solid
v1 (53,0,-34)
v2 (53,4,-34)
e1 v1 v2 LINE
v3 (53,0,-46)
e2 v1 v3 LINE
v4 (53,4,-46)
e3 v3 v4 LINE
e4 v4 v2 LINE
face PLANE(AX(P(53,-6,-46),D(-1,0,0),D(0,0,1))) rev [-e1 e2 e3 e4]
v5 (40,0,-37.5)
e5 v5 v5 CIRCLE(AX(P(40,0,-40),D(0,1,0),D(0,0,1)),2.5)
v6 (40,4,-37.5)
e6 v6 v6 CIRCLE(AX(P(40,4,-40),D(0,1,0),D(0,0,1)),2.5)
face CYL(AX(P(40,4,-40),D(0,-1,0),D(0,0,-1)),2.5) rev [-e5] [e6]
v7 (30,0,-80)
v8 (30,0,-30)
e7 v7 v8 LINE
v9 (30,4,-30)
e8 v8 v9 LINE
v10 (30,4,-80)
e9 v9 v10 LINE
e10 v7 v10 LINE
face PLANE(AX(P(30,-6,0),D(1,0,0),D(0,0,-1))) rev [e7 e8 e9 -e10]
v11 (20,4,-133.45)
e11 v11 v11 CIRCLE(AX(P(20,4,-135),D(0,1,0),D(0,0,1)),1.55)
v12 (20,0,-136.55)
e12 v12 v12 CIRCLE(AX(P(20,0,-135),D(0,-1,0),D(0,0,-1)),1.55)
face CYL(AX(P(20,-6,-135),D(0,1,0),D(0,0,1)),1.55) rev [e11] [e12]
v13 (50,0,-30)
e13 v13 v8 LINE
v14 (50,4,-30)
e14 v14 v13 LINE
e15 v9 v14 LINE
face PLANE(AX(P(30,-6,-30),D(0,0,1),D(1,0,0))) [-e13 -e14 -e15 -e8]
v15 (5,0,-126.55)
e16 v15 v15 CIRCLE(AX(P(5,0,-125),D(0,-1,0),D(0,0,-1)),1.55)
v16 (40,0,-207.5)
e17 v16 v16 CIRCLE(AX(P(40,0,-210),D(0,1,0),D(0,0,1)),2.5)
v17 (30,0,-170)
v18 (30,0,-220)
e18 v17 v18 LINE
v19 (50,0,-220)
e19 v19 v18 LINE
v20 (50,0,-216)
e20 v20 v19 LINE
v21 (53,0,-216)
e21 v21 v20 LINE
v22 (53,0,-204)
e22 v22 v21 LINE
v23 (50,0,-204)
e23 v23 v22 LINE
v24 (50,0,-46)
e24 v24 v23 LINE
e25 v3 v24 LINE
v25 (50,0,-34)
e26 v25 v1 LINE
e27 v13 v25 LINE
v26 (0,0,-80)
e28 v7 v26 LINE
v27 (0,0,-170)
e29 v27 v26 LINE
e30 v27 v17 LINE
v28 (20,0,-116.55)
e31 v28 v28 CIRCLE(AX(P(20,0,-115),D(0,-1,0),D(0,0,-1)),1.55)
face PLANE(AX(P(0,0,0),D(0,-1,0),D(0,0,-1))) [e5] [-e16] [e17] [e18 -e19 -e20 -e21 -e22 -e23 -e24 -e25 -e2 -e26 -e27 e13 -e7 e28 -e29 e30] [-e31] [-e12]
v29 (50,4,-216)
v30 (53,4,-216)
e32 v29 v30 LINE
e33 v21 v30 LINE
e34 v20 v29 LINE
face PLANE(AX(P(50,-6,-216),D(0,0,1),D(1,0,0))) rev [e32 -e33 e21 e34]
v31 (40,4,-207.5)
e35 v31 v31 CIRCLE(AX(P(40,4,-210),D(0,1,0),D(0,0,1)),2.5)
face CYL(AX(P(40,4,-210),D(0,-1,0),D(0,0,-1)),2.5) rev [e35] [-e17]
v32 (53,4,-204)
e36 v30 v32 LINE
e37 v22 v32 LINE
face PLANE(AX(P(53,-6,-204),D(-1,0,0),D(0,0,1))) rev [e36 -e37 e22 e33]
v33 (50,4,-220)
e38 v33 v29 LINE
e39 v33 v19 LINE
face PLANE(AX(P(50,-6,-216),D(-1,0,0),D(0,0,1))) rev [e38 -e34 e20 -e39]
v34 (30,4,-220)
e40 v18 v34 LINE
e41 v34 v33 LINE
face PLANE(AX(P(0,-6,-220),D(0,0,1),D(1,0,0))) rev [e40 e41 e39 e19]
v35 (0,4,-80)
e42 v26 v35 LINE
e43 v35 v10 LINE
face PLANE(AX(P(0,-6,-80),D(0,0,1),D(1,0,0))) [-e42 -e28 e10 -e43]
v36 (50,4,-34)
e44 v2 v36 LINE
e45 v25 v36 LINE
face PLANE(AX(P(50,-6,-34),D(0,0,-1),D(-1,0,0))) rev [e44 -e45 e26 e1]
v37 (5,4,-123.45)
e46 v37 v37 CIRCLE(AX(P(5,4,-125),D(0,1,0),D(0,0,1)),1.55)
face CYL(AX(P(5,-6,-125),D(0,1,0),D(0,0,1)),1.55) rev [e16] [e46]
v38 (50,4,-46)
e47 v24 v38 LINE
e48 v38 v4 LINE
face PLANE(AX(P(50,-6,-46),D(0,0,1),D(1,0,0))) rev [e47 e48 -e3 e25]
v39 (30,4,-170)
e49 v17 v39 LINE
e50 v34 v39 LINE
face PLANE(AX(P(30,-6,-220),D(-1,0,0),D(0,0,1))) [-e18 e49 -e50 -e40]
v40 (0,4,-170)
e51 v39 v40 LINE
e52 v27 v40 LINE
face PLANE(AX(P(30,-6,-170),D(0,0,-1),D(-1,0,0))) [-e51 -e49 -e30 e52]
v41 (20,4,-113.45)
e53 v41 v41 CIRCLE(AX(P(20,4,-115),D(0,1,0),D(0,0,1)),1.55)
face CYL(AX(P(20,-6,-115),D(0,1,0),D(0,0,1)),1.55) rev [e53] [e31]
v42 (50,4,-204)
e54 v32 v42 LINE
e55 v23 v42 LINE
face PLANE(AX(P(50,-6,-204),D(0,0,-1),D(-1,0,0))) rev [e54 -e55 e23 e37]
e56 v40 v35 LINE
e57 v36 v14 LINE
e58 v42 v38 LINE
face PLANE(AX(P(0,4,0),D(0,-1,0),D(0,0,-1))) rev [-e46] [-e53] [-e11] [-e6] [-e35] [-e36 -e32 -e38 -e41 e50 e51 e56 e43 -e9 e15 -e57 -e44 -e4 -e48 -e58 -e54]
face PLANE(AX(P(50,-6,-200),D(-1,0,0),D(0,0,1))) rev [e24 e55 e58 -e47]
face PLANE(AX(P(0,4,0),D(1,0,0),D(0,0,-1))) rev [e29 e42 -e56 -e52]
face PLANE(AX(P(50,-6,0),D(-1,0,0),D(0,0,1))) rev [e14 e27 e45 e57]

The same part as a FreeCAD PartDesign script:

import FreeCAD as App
import Part
import Sketcher

V = App.Vector
Q = App.Units.Quantity

doc = App.newDocument("Part")
body = doc.addObject("PartDesign::Body", "Body")

# Sketch on XZ plane
sketch1 = body.newObject("Sketcher::SketchObject", "Sketch")
sketch1.AttachmentSupport = (doc.getObject("XZ_Plane"), [""])
sketch1.MapMode = "FlatFace"
sketch1.addGeometry([
    Part.LineSegment(V(0, -250, 0), V(0, 0, 0)),  # 0
    Part.LineSegment(V(0, 0, 0), V(250, 0, 0)),  # 1
    Part.LineSegment(V(250, 0, 0), V(250, -250, 0)),  # 2
    Part.LineSegment(V(250, -250, 0), V(0, -250, 0)),  # 3
    Part.Circle(V(40, -40, 0), V(0, 0, 1), 2.5),  # 4
    Part.Circle(V(210, -40, 0), V(0, 0, 1), 2.5),  # 5
    Part.Circle(V(40, -210, 0), V(0, 0, 1), 2.5),  # 6
    Part.Circle(V(210, -210, 0), V(0, 0, 1), 2.5),  # 7
], False)
sketch1.addConstraint([
    Sketcher.Constraint("Coincident", 0, 2, 1, 1),
    Sketcher.Constraint("Coincident", 1, 2, 2, 1),
    Sketcher.Constraint("Coincident", 2, 2, 3, 1),
    Sketcher.Constraint("Coincident", 3, 2, 0, 1),
    Sketcher.Constraint("Vertical", 0),
    Sketcher.Constraint("Horizontal", 1),
    Sketcher.Constraint("Vertical", 2),
    Sketcher.Constraint("Horizontal", 3),
    Sketcher.Constraint("Coincident", 0, 2, -1, 1),
    Sketcher.Constraint("Equal", 4, 5),
    Sketcher.Constraint("Equal", 5, 6),
    Sketcher.Constraint("Equal", 6, 7),
    Sketcher.Constraint("Horizontal", 4, 3, 5, 3),
    Sketcher.Constraint("Horizontal", 6, 3, 7, 3),
    Sketcher.Constraint("Vertical", 4, 3, 6, 3),
    Sketcher.Constraint("Vertical", 5, 3, 7, 3),
    Sketcher.Constraint("Equal", 3, 0),
    Sketcher.Constraint("Diameter", 4, Q("5 mm")),
    Sketcher.Constraint("DistanceX", 1, 1, 1, 2, Q("250 mm")),
    Sketcher.Constraint("DistanceX", -1, 1, 4, 3, Q("40 mm")),
    Sketcher.Constraint("DistanceY", 4, 3, -1, 1, Q("40 mm")),
    Sketcher.Constraint("DistanceX", -1, 1, 5, 3, Q("210 mm")),
    Sketcher.Constraint("DistanceY", 6, 3, -1, 1, Q("210 mm")),
])
pad1 = body.newObject("PartDesign::Pad", "Pad")
pad1.Profile = sketch1
pad1.Length = 4
pad1.Reversed = True

# Sketch on XZ plane
sketch2 = body.newObject("Sketcher::SketchObject", "Sketch001")
sketch2.AttachmentSupport = (doc.getObject("XZ_Plane"), [""])
sketch2.MapMode = "FlatFace"
sketch2.AttachmentOffset = App.Placement(V(0, 0, -4), App.Rotation())
sketch2.addGeometry([
    Part.LineSegment(V(50, -50, 0), V(200, -50, 0)),
    Part.LineSegment(V(200, -50, 0), V(200, -200, 0)),
    Part.LineSegment(V(200, -200, 0), V(50, -200, 0)),
    Part.LineSegment(V(50, -200, 0), V(50, -50, 0)),
], False)
sketch2.addConstraint([
    Sketcher.Constraint("Coincident", 0, 2, 1, 1),
    Sketcher.Constraint("Coincident", 1, 2, 2, 1),
    Sketcher.Constraint("Coincident", 2, 2, 3, 1),
    Sketcher.Constraint("Coincident", 3, 2, 0, 1),
    Sketcher.Constraint("Horizontal", 0),
    Sketcher.Constraint("Vertical", 1),
    Sketcher.Constraint("Horizontal", 2),
    Sketcher.Constraint("Vertical", 3),
    Sketcher.Constraint("Equal", 2, 1),
    Sketcher.Constraint("DistanceX", 0, 1, 0, 2, Q("150 mm")),
    Sketcher.Constraint("DistanceX", -1, 1, 0, 2, Q("200 mm")),
    Sketcher.Constraint("DistanceY", 0, 2, -1, 1, Q("50 mm")),
])
pocket1 = body.newObject("PartDesign::Pocket", "Pocket")
pocket1.Profile = sketch2
pocket1.Length = 4
pocket1.Reversed = True

# Sketch on XZ plane
sketch3 = body.newObject("Sketcher::SketchObject", "Sketch002")
sketch3.AttachmentSupport = (doc.getObject("XZ_Plane"), [""])
sketch3.MapMode = "FlatFace"
sketch3.AttachmentOffset = App.Placement(V(0, 0, -4), App.Rotation())
sketch3.addGeometry([
    Part.LineSegment(V(50, -200, 0), V(50, -50, 0)),  # 0
    Part.LineSegment(V(50, -50, 0), V(200, -50, 0)),  # 1
    Part.LineSegment(V(200, -50, 0), V(200, -200, 0)),  # 2
    Part.LineSegment(V(200, -200, 0), V(50, -200, 0)),  # 3
    Part.LineSegment(V(175, -75, 0), V(75, -75, 0)),  # 4
    Part.LineSegment(V(75, -75, 0), V(75, -175, 0)),  # 5
    Part.LineSegment(V(75, -175, 0), V(175, -175, 0)),  # 6
    Part.LineSegment(V(175, -175, 0), V(175, -75, 0)),  # 7
], False)
sketch3.addConstraint([
    Sketcher.Constraint("Coincident", 0, 2, 1, 1),
    Sketcher.Constraint("Coincident", 1, 2, 2, 1),
    Sketcher.Constraint("Coincident", 2, 2, 3, 1),
    Sketcher.Constraint("Coincident", 3, 2, 0, 1),
    Sketcher.Constraint("Coincident", 4, 2, 5, 1),
    Sketcher.Constraint("Coincident", 5, 2, 6, 1),
    Sketcher.Constraint("Coincident", 6, 2, 7, 1),
    Sketcher.Constraint("Coincident", 7, 2, 4, 1),
    Sketcher.Constraint("Vertical", 0),
    Sketcher.Constraint("Horizontal", 1),
    Sketcher.Constraint("Vertical", 2),
    Sketcher.Constraint("Horizontal", 3),
    Sketcher.Constraint("Horizontal", 4),
    Sketcher.Constraint("Vertical", 5),
    Sketcher.Constraint("Horizontal", 6),
    Sketcher.Constraint("Vertical", 7),
    Sketcher.Constraint("Equal", 3, 0),
    Sketcher.Constraint("Equal", 6, 5),
    Sketcher.Constraint("DistanceX", 1, 1, 1, 2, Q("150 mm")),
    Sketcher.Constraint("DistanceX", 4, 2, 4, 1, Q("100 mm")),
    Sketcher.Constraint("DistanceX", -1, 1, 0, 2, Q("50 mm")),
    Sketcher.Constraint("DistanceY", 0, 2, -1, 1, Q("50 mm")),
    Sketcher.Constraint("DistanceX", -1, 1, 4, 2, Q("75 mm")),
    Sketcher.Constraint("DistanceY", 4, 2, -1, 1, Q("75 mm")),
])
pad2 = body.newObject("PartDesign::Pad", "Pad001")
pad2.Profile = sketch3
pad2.Length = 4

# Sketch on XZ plane
sketch4 = body.newObject("Sketcher::SketchObject", "Sketch003")
sketch4.AttachmentSupport = (doc.getObject("XZ_Plane"), [""])
sketch4.MapMode = "FlatFace"
sketch4.AttachmentOffset = App.Placement(V(0, 0, -4), App.Rotation())
sketch4.addGeometry([
    Part.Circle(V(115, -20, 0), V(0, 0, 1), 1.6),
    Part.Circle(V(135, -20, 0), V(0, 0, 1), 1.6),
    Part.Circle(V(125, -5, 0), V(0, 0, 1), 1.6),
], False)
sketch4.addConstraint([
    Sketcher.Constraint("Equal", 0, 1),
    Sketcher.Constraint("Equal", 1, 2),
    Sketcher.Constraint("Horizontal", 0, 3, 1, 3),
    Sketcher.Constraint("Diameter", 0, Q("3.1 mm")),
    Sketcher.Constraint("DistanceX", -1, 1, 0, 3, Q("115 mm")),
    Sketcher.Constraint("DistanceY", 0, 3, -1, 1, Q("20 mm")),
    Sketcher.Constraint("DistanceX", -1, 1, 1, 3, Q("135 mm")),
    Sketcher.Constraint("DistanceX", -1, 1, 2, 3, Q("125 mm")),
    Sketcher.Constraint("DistanceY", 2, 3, -1, 1, Q("5 mm")),
])
pocket2 = body.newObject("PartDesign::Pocket", "Pocket001")
pocket2.Profile = sketch4
pocket2.Length = 10
pocket2.Reversed = True

# Sketch on XZ plane
sketch5 = body.newObject("Sketcher::SketchObject", "Sketch004")
sketch5.AttachmentSupport = (doc.getObject("XZ_Plane"), [""])
sketch5.MapMode = "FlatFace"
sketch5.AttachmentOffset = App.Placement(V(0, 0, -4), App.Rotation())
sketch5.addGeometry([
    Part.LineSegment(V(50, -200, 0), V(50, -50, 0)),  # 0
    Part.LineSegment(V(50, -50, 0), V(200, -50, 0)),  # 1
    Part.LineSegment(V(200, -50, 0), V(200, -200, 0)),  # 2
    Part.LineSegment(V(200, -200, 0), V(50, -200, 0)),  # 3
    Part.LineSegment(V(175, -75, 0), V(75, -75, 0)),  # 4
    Part.LineSegment(V(75, -75, 0), V(75, -175, 0)),  # 5
    Part.LineSegment(V(75, -175, 0), V(175, -175, 0)),  # 6
    Part.LineSegment(V(175, -175, 0), V(175, -75, 0)),  # 7
], False)
sketch5.addConstraint([
    Sketcher.Constraint("Coincident", 0, 2, 1, 1),
    Sketcher.Constraint("Coincident", 1, 2, 2, 1),
    Sketcher.Constraint("Coincident", 2, 2, 3, 1),
    Sketcher.Constraint("Coincident", 3, 2, 0, 1),
    Sketcher.Constraint("Coincident", 4, 2, 5, 1),
    Sketcher.Constraint("Coincident", 5, 2, 6, 1),
    Sketcher.Constraint("Coincident", 6, 2, 7, 1),
    Sketcher.Constraint("Coincident", 7, 2, 4, 1),
    Sketcher.Constraint("Vertical", 0),
    Sketcher.Constraint("Horizontal", 1),
    Sketcher.Constraint("Vertical", 2),
    Sketcher.Constraint("Horizontal", 3),
    Sketcher.Constraint("Horizontal", 4),
    Sketcher.Constraint("Vertical", 5),
    Sketcher.Constraint("Horizontal", 6),
    Sketcher.Constraint("Vertical", 7),
    Sketcher.Constraint("Equal", 3, 0),
    Sketcher.Constraint("Equal", 6, 5),
    Sketcher.Constraint("DistanceX", 1, 1, 1, 2, Q("150 mm")),
    Sketcher.Constraint("DistanceX", 4, 2, 4, 1, Q("100 mm")),
    Sketcher.Constraint("DistanceX", -1, 1, 0, 2, Q("50 mm")),
    Sketcher.Constraint("DistanceY", 0, 2, -1, 1, Q("50 mm")),
    Sketcher.Constraint("DistanceX", -1, 1, 4, 2, Q("75 mm")),
    Sketcher.Constraint("DistanceY", 4, 2, -1, 1, Q("75 mm")),
])
pocket3 = body.newObject("PartDesign::Pocket", "Pocket002")
pocket3.Profile = sketch5
pocket3.Length = 10
pocket3.Reversed = True

# Sketch on XZ plane
sketch6 = body.newObject("Sketcher::SketchObject", "Sketch005")
sketch6.AttachmentSupport = (doc.getObject("XZ_Plane"), [""])
sketch6.MapMode = "FlatFace"
sketch6.AttachmentOffset = App.Placement(V(0, 0, -4), App.Rotation())
sketch6.addGeometry([
    Part.LineSegment(V(170, 0, 0), V(250, 0, 0)),  # 0
    Part.LineSegment(V(250, 0, 0), V(250, -80, 0)),  # 1
    Part.LineSegment(V(250, -80, 0), V(220, -80, 0)),  # 2
    Part.LineSegment(V(220, -80, 0), V(220, -30, 0)),  # 3
    Part.LineSegment(V(220, -30, 0), V(170, -30, 0)),  # 4
    Part.LineSegment(V(170, -30, 0), V(170, 0, 0)),  # 5
    Part.LineSegment(V(0, -80, 0), V(0, 0, 0)),  # 6
    Part.LineSegment(V(0, 0, 0), V(80, 0, 0)),  # 7
    Part.LineSegment(V(80, 0, 0), V(80, -30, 0)),  # 8
    Part.LineSegment(V(80, -30, 0), V(30, -30, 0)),  # 9
    Part.LineSegment(V(30, -30, 0), V(30, -80, 0)),  # 10
    Part.LineSegment(V(30, -80, 0), V(0, -80, 0)),  # 11
    Part.LineSegment(V(80, -250, 0), V(0, -250, 0)),  # 12
    Part.LineSegment(V(0, -250, 0), V(0, -170, 0)),  # 13
    Part.LineSegment(V(0, -170, 0), V(30, -170, 0)),  # 14
    Part.LineSegment(V(30, -170, 0), V(30, -220, 0)),  # 15
    Part.LineSegment(V(30, -220, 0), V(80, -220, 0)),  # 16
    Part.LineSegment(V(80, -220, 0), V(80, -250, 0)),  # 17
    Part.LineSegment(V(250, -170, 0), V(250, -250, 0)),  # 18
    Part.LineSegment(V(250, -250, 0), V(170, -250, 0)),  # 19
    Part.LineSegment(V(170, -250, 0), V(170, -220, 0)),  # 20
    Part.LineSegment(V(170, -220, 0), V(220, -220, 0)),  # 21
    Part.LineSegment(V(220, -220, 0), V(220, -170, 0)),  # 22
    Part.LineSegment(V(220, -170, 0), V(250, -170, 0)),  # 23
], False)
sketch6.addConstraint([
    Sketcher.Constraint("Coincident", 0, 2, 1, 1),
    Sketcher.Constraint("Coincident", 1, 2, 2, 1),
    Sketcher.Constraint("Coincident", 2, 2, 3, 1),
    Sketcher.Constraint("Coincident", 3, 2, 4, 1),
    Sketcher.Constraint("Coincident", 4, 2, 5, 1),
    Sketcher.Constraint("Coincident", 5, 2, 0, 1),
    Sketcher.Constraint("Coincident", 6, 2, 7, 1),
    Sketcher.Constraint("Coincident", 7, 2, 8, 1),
    Sketcher.Constraint("Coincident", 8, 2, 9, 1),
    Sketcher.Constraint("Coincident", 9, 2, 10, 1),
    Sketcher.Constraint("Coincident", 10, 2, 11, 1),
    Sketcher.Constraint("Coincident", 11, 2, 6, 1),
    Sketcher.Constraint("Coincident", 12, 2, 13, 1),
    Sketcher.Constraint("Coincident", 13, 2, 14, 1),
    Sketcher.Constraint("Coincident", 14, 2, 15, 1),
    Sketcher.Constraint("Coincident", 15, 2, 16, 1),
    Sketcher.Constraint("Coincident", 16, 2, 17, 1),
    Sketcher.Constraint("Coincident", 17, 2, 12, 1),
    Sketcher.Constraint("Coincident", 18, 2, 19, 1),
    Sketcher.Constraint("Coincident", 19, 2, 20, 1),
    Sketcher.Constraint("Coincident", 20, 2, 21, 1),
    Sketcher.Constraint("Coincident", 21, 2, 22, 1),
    Sketcher.Constraint("Coincident", 22, 2, 23, 1),
    Sketcher.Constraint("Coincident", 23, 2, 18, 1),
    Sketcher.Constraint("Horizontal", 0),
    Sketcher.Constraint("Vertical", 1),
    Sketcher.Constraint("Horizontal", 2),
    Sketcher.Constraint("Vertical", 3),
    Sketcher.Constraint("Horizontal", 4),
    Sketcher.Constraint("Vertical", 5),
    Sketcher.Constraint("Vertical", 6),
    Sketcher.Constraint("Horizontal", 7),
    Sketcher.Constraint("Vertical", 8),
    Sketcher.Constraint("Horizontal", 9),
    Sketcher.Constraint("Vertical", 10),
    Sketcher.Constraint("Horizontal", 11),
    Sketcher.Constraint("Horizontal", 12),
    Sketcher.Constraint("Vertical", 13),
    Sketcher.Constraint("Horizontal", 14),
    Sketcher.Constraint("Vertical", 15),
    Sketcher.Constraint("Horizontal", 16),
    Sketcher.Constraint("Vertical", 17),
    Sketcher.Constraint("Vertical", 18),
    Sketcher.Constraint("Horizontal", 19),
    Sketcher.Constraint("Vertical", 20),
    Sketcher.Constraint("Horizontal", 21),
    Sketcher.Constraint("Vertical", 22),
    Sketcher.Constraint("Horizontal", 23),
    Sketcher.Constraint("Coincident", 6, 2, -1, 1),
    Sketcher.Constraint("PointOnObject", 0, 2, -1),
    Sketcher.Constraint("PointOnObject", 12, 2, -2),
    Sketcher.Constraint("Horizontal", 4, 2, 8, 2),
    Sketcher.Constraint("Horizontal", 2, 2, 10, 2),
    Sketcher.Constraint("Horizontal", 17, 2, 18, 2),
    Sketcher.Constraint("Horizontal", 16, 2, 20, 2),
    Sketcher.Constraint("Horizontal", 14, 2, 22, 2),
    Sketcher.Constraint("Vertical", 10, 2, 14, 2),
    Sketcher.Constraint("Vertical", 8, 2, 16, 2),
    Sketcher.Constraint("Vertical", 1, 2, 18, 2),
    Sketcher.Constraint("Vertical", 5, 2, 19, 2),
    Sketcher.Constraint("Vertical", 3, 2, 21, 2),
    Sketcher.Constraint("Equal", 0, 7),
    Sketcher.Constraint("Equal", 4, 9),
    Sketcher.Constraint("Equal", 19, 1),
    Sketcher.Constraint("Equal", 21, 3),
    Sketcher.Constraint("Equal", 6, 13),
    Sketcher.Constraint("Equal", 10, 15),
    Sketcher.Constraint("DistanceX", 0, 1, 0, 2, Q("80 mm")),
    Sketcher.Constraint("DistanceX", 2, 2, 2, 1, Q("30 mm")),
    Sketcher.Constraint("DistanceX", -1, 1, 0, 2, Q("250 mm")),
    Sketcher.Constraint("DistanceY", 12, 2, -1, 1, Q("250 mm")),
])
pocket4 = body.newObject("PartDesign::Pocket", "Pocket003")
pocket4.Profile = sketch6
pocket4.Length = 10
pocket4.Reversed = True

# Sketch on XZ plane
sketch7 = body.newObject("Sketcher::SketchObject", "Sketch006")
sketch7.AttachmentSupport = (doc.getObject("XZ_Plane"), [""])
sketch7.MapMode = "FlatFace"
sketch7.AttachmentOffset = App.Placement(V(0, 0, -4), App.Rotation())
sketch7.addGeometry([
    Part.Circle(V(125, -5, 0), V(0, 0, 1), 1.6),  # 0
    Part.Circle(V(135, -20, 0), V(0, 0, 1), 1.6),  # 1
    Part.Circle(V(115, -20, 0), V(0, 0, 1), 1.6),  # 2
    Part.Circle(V(20, -135, 0), V(0, 0, 1), 1.6),  # 3
    Part.Circle(V(5, -125, 0), V(0, 0, 1), 1.6),  # 4
    Part.Circle(V(20, -115, 0), V(0, 0, 1), 1.6),  # 5
    Part.Circle(V(135, -230, 0), V(0, 0, 1), 1.6),  # 6
    Part.Circle(V(125, -245, 0), V(0, 0, 1), 1.6),  # 7
    Part.Circle(V(115, -230, 0), V(0, 0, 1), 1.6),  # 8
    Part.Circle(V(230, -115, 0), V(0, 0, 1), 1.6),  # 9
    Part.Circle(V(245, -125, 0), V(0, 0, 1), 1.6),  # 10
    Part.Circle(V(230, -135, 0), V(0, 0, 1), 1.6),  # 11
], False)
sketch7.addConstraint([
    Sketcher.Constraint("Equal", 0, 1),
    Sketcher.Constraint("Equal", 1, 2),
    Sketcher.Constraint("Equal", 2, 3),
    Sketcher.Constraint("Equal", 3, 4),
    Sketcher.Constraint("Equal", 4, 5),
    Sketcher.Constraint("Equal", 5, 6),
    Sketcher.Constraint("Equal", 6, 7),
    Sketcher.Constraint("Equal", 7, 8),
    Sketcher.Constraint("Equal", 8, 9),
    Sketcher.Constraint("Equal", 9, 10),
    Sketcher.Constraint("Equal", 10, 11),
    Sketcher.Constraint("Horizontal", 1, 3, 2, 3),
    Sketcher.Constraint("Horizontal", 6, 3, 8, 3),
    Sketcher.Constraint("Horizontal", 5, 3, 9, 3),
    Sketcher.Constraint("Horizontal", 4, 3, 10, 3),
    Sketcher.Constraint("Horizontal", 3, 3, 11, 3),
    Sketcher.Constraint("Vertical", 3, 3, 5, 3),
    Sketcher.Constraint("Vertical", 1, 3, 6, 3),
    Sketcher.Constraint("Vertical", 0, 3, 7, 3),
    Sketcher.Constraint("Vertical", 2, 3, 8, 3),
    Sketcher.Constraint("Vertical", 9, 3, 11, 3),
    Sketcher.Constraint("Diameter", 0, Q("3.1 mm")),
    Sketcher.Constraint("DistanceX", -1, 1, 0, 3, Q("125 mm")),
    Sketcher.Constraint("DistanceY", 0, 3, -1, 1, Q("5 mm")),
    Sketcher.Constraint("DistanceX", -1, 1, 1, 3, Q("135 mm")),
    Sketcher.Constraint("DistanceY", 1, 3, -1, 1, Q("20 mm")),
    Sketcher.Constraint("DistanceX", -1, 1, 2, 3, Q("115 mm")),
    Sketcher.Constraint("DistanceX", -1, 1, 3, 3, Q("20 mm")),
    Sketcher.Constraint("DistanceY", 3, 3, -1, 1, Q("135 mm")),
    Sketcher.Constraint("DistanceX", -1, 1, 4, 3, Q("5 mm")),
    Sketcher.Constraint("DistanceY", 4, 3, -1, 1, Q("125 mm")),
    Sketcher.Constraint("DistanceY", 5, 3, -1, 1, Q("115 mm")),
    Sketcher.Constraint("DistanceY", 6, 3, -1, 1, Q("230 mm")),
    Sketcher.Constraint("DistanceY", 7, 3, -1, 1, Q("245 mm")),
    Sketcher.Constraint("DistanceX", -1, 1, 9, 3, Q("230 mm")),
    Sketcher.Constraint("DistanceX", -1, 1, 10, 3, Q("245 mm")),
])
pocket5 = body.newObject("PartDesign::Pocket", "Pocket004")
pocket5.Profile = sketch7
pocket5.Length = 10
pocket5.Reversed = True

# Sketch on XZ plane
sketch8 = body.newObject("Sketcher::SketchObject", "Sketch007")
sketch8.AttachmentSupport = (doc.getObject("XZ_Plane"), [""])
sketch8.MapMode = "FlatFace"
sketch8.AttachmentOffset = App.Placement(V(0, 0, -4), App.Rotation())
sketch8.addGeometry([
    Part.LineSegment(V(50, 0, 0), V(250, 0, 0)),  # 0
    Part.LineSegment(V(250, 0, 0), V(250, -250, 0)),  # 1
    Part.LineSegment(V(250, -250, 0), V(50, -250, 0)),  # 2
    Part.LineSegment(V(50, -250, 0), V(50, -216, 0)),  # 3
    Part.LineSegment(V(50, -216, 0), V(53, -216, 0)),  # 4
    Part.LineSegment(V(53, -216, 0), V(53, -204, 0)),  # 5
    Part.LineSegment(V(53, -204, 0), V(50, -204, 0)),  # 6
    Part.LineSegment(V(50, -204, 0), V(50, -46, 0)),  # 7
    Part.LineSegment(V(50, -46, 0), V(53, -46, 0)),  # 8
    Part.LineSegment(V(53, -46, 0), V(53, -34, 0)),  # 9
    Part.LineSegment(V(53, -34, 0), V(50, -34, 0)),  # 10
    Part.LineSegment(V(50, -34, 0), V(50, 0, 0)),  # 11
], False)
sketch8.addConstraint([
    Sketcher.Constraint("Coincident", 0, 2, 1, 1),
    Sketcher.Constraint("Coincident", 1, 2, 2, 1),
    Sketcher.Constraint("Coincident", 2, 2, 3, 1),
    Sketcher.Constraint("Coincident", 3, 2, 4, 1),
    Sketcher.Constraint("Coincident", 4, 2, 5, 1),
    Sketcher.Constraint("Coincident", 5, 2, 6, 1),
    Sketcher.Constraint("Coincident", 6, 2, 7, 1),
    Sketcher.Constraint("Coincident", 7, 2, 8, 1),
    Sketcher.Constraint("Coincident", 8, 2, 9, 1),
    Sketcher.Constraint("Coincident", 9, 2, 10, 1),
    Sketcher.Constraint("Coincident", 10, 2, 11, 1),
    Sketcher.Constraint("Coincident", 11, 2, 0, 1),
    Sketcher.Constraint("Horizontal", 0),
    Sketcher.Constraint("Vertical", 1),
    Sketcher.Constraint("Horizontal", 2),
    Sketcher.Constraint("Vertical", 3),
    Sketcher.Constraint("Horizontal", 4),
    Sketcher.Constraint("Vertical", 5),
    Sketcher.Constraint("Horizontal", 6),
    Sketcher.Constraint("Vertical", 7),
    Sketcher.Constraint("Horizontal", 8),
    Sketcher.Constraint("Vertical", 9),
    Sketcher.Constraint("Horizontal", 10),
    Sketcher.Constraint("Vertical", 11),
    Sketcher.Constraint("PointOnObject", 0, 2, -1),
    Sketcher.Constraint("Vertical", 3, 2, 6, 2),
    Sketcher.Constraint("Vertical", 5, 2, 8, 2),
    Sketcher.Constraint("Vertical", 7, 2, 10, 2),
    Sketcher.Constraint("Equal", 5, 9),
    Sketcher.Constraint("Equal", 3, 11),
    Sketcher.Constraint("DistanceX", 0, 1, 0, 2, Q("200 mm")),
    Sketcher.Constraint("DistanceX", 4, 1, 4, 2, Q("3 mm")),
    Sketcher.Constraint("DistanceY", 1, 2, 1, 1, Q("250 mm")),
    Sketcher.Constraint("DistanceY", 3, 1, 3, 2, Q("34 mm")),
    Sketcher.Constraint("DistanceY", 5, 1, 5, 2, Q("12 mm")),
    Sketcher.Constraint("DistanceX", -1, 1, 0, 2, Q("250 mm")),
])
pocket6 = body.newObject("PartDesign::Pocket", "Pocket005")
pocket6.Profile = sketch8
pocket6.Length = 10
pocket6.Reversed = True

doc.recompute()
